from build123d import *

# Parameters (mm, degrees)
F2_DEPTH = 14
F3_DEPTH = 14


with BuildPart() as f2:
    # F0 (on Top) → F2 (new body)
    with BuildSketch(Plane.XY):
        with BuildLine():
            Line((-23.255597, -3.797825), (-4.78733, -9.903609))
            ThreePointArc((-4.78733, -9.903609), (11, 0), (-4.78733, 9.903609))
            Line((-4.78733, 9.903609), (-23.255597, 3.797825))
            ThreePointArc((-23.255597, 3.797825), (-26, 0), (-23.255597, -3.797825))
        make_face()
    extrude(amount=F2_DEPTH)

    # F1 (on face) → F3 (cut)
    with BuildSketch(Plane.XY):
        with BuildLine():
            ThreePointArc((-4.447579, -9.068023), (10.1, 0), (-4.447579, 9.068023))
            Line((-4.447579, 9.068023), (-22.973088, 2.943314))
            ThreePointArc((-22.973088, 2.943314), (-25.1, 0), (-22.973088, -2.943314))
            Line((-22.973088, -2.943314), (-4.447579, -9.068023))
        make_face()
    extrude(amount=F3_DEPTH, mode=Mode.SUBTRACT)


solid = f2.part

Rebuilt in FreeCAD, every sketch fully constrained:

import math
import FreeCAD as App
import Part
import Sketcher

doc = App.newDocument("Part")
body = doc.addObject("PartDesign::Body", "Body")

sketch1 = body.newObject("Sketcher::SketchObject", "Sketch")
sketch1.AttachmentSupport = (doc.getObject("XY_Plane"), [""])
sketch1.MapMode = "FlatFace"
sketch1.addGeometry([
    Part.LineSegment(App.Vector(-23.3, -3.8, 0), App.Vector(-4.8, -9.9, 0)),
    Part.ArcOfCircle(Part.Circle(App.Vector(0, 0, 0), App.Vector(0, 0, 1), 11), math.radians(-116), math.radians(116)),
    Part.LineSegment(App.Vector(-4.8, 9.9, 0), App.Vector(-23.3, 3.8, 0)),
    Part.ArcOfCircle(Part.Circle(App.Vector(-22, 0, 0), App.Vector(0, 0, 1), 4), math.radians(108), math.radians(252)),
], False)
sketch1.addConstraint([
    Sketcher.Constraint("Coincident", 0, 2, 1, 1),
    Sketcher.Constraint("Coincident", 1, 2, 2, 1),
    Sketcher.Constraint("Tangent", 2, 2, 3, 1),
    Sketcher.Constraint("Tangent", 3, 2, 0, 1),
    Sketcher.Constraint("Coincident", 1, 3, -1, 1),
    Sketcher.Constraint("Symmetric", 2, 2, 3, 2, -1),
    Sketcher.Constraint("Radius", 1, 11.0),
    Sketcher.Constraint("Radius", 3, 4.0),
    Sketcher.Constraint("DistanceX", 3, 3, -1, 1, 22.0),
    Sketcher.Constraint("DistanceX", 0, 2, -1, 1, 4.78733),
])
pad1 = body.newObject("PartDesign::Pad", "Pad")
pad1.Profile = sketch1
pad1.Length = 14

sketch2 = body.newObject("Sketcher::SketchObject", "Sketch001")
sketch2.AttachmentSupport = (doc.getObject("XY_Plane"), [""])
sketch2.MapMode = "FlatFace"
sketch2.addGeometry([
    Part.ArcOfCircle(Part.Circle(App.Vector(0, 0, 0), App.Vector(0, 0, 1), 10.1), math.radians(-116), math.radians(116)),
    Part.LineSegment(App.Vector(-4.4, 9.1, 0), App.Vector(-23, 2.9, 0)),
    Part.ArcOfCircle(Part.Circle(App.Vector(-22, 0, 0), App.Vector(0, 0, 1), 3.1), math.radians(108), math.radians(252)),
    Part.LineSegment(App.Vector(-23, -2.9, 0), App.Vector(-4.4, -9.1, 0)),
], False)
sketch2.addConstraint([
    Sketcher.Constraint("Coincident", 0, 2, 1, 1),
    Sketcher.Constraint("Tangent", 1, 2, 2, 1),
    Sketcher.Constraint("Tangent", 2, 2, 3, 1),
    Sketcher.Constraint("Coincident", 3, 2, 0, 1),
    Sketcher.Constraint("Coincident", 0, 3, -1, 1),
    Sketcher.Constraint("Symmetric", 1, 2, 2, 2, -1),
    Sketcher.Constraint("Radius", 0, 10.1),
    Sketcher.Constraint("Radius", 2, 3.099999),
    Sketcher.Constraint("DistanceX", 2, 3, -1, 1, 22.000001),
    Sketcher.Constraint("DistanceX", 0, 2, -1, 1, 4.447579),
])
pocket1 = body.newObject("PartDesign::Pocket", "Pocket")
pocket1.Profile = sketch2
pocket1.Length = 14
pocket1.Reversed = True

doc.recompute()
